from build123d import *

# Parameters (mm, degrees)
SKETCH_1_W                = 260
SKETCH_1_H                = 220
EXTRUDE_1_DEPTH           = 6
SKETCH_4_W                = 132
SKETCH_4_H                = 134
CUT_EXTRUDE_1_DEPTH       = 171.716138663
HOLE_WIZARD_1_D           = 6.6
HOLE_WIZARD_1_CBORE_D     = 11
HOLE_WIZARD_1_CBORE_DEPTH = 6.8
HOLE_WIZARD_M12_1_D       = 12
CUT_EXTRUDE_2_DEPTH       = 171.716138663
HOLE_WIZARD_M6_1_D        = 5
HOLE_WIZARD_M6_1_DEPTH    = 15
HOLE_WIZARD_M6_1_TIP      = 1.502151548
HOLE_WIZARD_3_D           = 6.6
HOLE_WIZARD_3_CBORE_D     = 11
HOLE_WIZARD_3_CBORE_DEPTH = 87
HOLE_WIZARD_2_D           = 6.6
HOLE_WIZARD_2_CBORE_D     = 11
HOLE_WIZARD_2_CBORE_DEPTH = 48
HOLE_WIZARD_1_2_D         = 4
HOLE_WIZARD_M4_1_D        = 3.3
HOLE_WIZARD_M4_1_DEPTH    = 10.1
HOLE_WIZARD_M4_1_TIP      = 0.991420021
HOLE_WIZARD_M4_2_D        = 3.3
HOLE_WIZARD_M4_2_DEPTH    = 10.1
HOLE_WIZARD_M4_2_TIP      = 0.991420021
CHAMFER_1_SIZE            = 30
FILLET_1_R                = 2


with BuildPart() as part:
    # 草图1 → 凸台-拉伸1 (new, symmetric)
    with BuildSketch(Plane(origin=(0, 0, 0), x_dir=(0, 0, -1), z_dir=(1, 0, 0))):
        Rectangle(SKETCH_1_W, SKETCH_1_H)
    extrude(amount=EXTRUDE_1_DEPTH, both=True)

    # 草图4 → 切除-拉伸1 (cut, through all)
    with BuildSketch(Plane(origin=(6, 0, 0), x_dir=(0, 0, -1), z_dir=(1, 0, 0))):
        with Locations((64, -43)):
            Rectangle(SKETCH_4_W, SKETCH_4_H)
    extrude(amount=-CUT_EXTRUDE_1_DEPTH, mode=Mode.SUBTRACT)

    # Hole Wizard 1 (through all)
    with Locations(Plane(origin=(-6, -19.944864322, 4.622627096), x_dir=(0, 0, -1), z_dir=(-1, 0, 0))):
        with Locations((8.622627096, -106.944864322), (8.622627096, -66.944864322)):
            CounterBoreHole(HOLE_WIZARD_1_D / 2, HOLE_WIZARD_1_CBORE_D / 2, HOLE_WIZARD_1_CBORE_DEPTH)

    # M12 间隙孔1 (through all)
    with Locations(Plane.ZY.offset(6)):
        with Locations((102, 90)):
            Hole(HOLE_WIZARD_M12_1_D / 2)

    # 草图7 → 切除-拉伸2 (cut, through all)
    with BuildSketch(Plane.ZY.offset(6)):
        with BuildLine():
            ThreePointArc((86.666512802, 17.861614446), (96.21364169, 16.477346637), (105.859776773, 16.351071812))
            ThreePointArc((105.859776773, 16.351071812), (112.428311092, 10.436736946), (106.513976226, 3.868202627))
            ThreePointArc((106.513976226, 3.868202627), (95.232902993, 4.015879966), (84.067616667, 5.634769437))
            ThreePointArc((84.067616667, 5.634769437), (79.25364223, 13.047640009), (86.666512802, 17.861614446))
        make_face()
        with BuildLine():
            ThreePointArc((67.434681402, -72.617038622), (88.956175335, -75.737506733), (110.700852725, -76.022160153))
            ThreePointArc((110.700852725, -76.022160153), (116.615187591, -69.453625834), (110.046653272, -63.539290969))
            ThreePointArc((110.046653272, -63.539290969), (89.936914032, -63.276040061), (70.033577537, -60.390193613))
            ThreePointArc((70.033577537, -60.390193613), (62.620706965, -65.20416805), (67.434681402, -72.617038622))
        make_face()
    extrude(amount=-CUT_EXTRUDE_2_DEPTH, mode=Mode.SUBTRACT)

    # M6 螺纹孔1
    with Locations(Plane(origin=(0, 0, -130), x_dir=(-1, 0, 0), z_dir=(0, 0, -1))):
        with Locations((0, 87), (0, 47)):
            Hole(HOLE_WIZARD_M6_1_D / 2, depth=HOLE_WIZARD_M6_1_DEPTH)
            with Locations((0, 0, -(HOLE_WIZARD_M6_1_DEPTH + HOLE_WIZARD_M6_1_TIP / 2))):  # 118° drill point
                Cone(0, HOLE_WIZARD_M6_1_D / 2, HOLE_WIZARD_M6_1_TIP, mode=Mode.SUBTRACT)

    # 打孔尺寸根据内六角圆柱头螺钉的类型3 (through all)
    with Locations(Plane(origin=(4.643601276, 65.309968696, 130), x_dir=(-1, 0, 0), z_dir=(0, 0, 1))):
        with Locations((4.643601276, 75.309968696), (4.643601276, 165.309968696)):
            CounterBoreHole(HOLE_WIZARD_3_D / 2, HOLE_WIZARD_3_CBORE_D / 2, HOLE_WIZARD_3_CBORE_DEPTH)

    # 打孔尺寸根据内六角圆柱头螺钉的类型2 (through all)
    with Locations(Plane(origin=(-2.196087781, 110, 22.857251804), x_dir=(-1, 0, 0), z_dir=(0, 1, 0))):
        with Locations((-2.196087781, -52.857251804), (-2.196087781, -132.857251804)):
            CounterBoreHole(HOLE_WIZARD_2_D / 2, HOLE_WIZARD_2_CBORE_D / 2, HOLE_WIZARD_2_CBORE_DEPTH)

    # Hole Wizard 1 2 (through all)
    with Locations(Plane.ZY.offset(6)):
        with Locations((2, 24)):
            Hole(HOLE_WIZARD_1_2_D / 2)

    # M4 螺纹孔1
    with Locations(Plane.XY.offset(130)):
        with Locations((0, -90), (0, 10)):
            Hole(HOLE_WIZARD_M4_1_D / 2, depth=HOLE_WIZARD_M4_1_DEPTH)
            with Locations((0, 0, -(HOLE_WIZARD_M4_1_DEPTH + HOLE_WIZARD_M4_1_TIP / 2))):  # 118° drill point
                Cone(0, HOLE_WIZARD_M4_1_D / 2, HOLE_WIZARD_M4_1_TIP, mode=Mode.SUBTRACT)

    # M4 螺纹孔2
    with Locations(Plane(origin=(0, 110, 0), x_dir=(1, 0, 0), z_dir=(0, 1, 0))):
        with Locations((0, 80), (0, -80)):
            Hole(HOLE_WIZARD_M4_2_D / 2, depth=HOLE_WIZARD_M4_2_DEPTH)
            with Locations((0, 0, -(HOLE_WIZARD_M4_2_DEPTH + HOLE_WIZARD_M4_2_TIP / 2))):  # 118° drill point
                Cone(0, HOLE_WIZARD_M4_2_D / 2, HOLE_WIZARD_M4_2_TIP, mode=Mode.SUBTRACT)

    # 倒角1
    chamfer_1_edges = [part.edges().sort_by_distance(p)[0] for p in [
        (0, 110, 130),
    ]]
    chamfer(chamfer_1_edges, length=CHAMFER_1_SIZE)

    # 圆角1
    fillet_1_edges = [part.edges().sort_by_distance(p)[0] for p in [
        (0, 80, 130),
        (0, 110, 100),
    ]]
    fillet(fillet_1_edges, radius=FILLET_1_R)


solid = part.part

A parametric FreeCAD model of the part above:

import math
import FreeCAD as App
import Part
import Sketcher

V = App.Vector
Q = App.Units.Quantity


def edges_at(feature, points):
    """Names of the edges that pass closest to the given points."""
    edges = feature.Shape.Edges
    near = lambda p: min(range(len(edges)), key=lambda i: edges[i].distToShape(Part.Vertex(*p))[0])
    return sorted({f"Edge{near(p) + 1}" for p in points})


def add_polygon(sketch, points):
    """Adds a closed chain of lines whose ends are joined by coincident constraints."""
    first, n = sketch.GeometryCount, len(points)
    for a, b in zip(points, points[1:] + points[:1]):
        sketch.addGeometry(Part.LineSegment(App.Vector(*a, 0), App.Vector(*b, 0)), False)
    for i in range(n):
        sketch.addConstraint(Sketcher.Constraint("Coincident", first + i, 2, first + (i + 1) % n, 1))

doc = App.newDocument("Part")
params = doc.addObject("Spreadsheet::Sheet", "Params")
for row, (alias, value) in enumerate([
    ("sketch1_width", "220 mm"),
    ("sketch1_height", "260 mm"),
    ("pad1_length", "12 mm"),
    ("sketch2_width", "134 mm"),
    ("sketch2_height", "132 mm"),
    ("sketch3_diameter", "6.6 mm"),
    ("hole_diameter", "6.6 mm"),
    ("hole_cbore_diameter", "11 mm"),
    ("hole_cbore_depth", "6.8 mm"),
    ("sketch4_diameter", "12 mm"),
    ("hole2_diameter", "12 mm"),
    ("sketch5_radius", "73.75 mm"),
    ("sketch5_radius2", "6.25 mm"),
    ("sketch5_radius3", "166.25 mm"),
    ("sketch6_diameter", "5 mm"),
    ("hole3_diameter", "5 mm"),
    ("hole3_depth", "15 mm"),
    ("sketch7_diameter", "6.6 mm"),
    ("hole4_diameter", "6.6 mm"),
    ("hole4_cbore_diameter", "11 mm"),
    ("hole4_cbore_depth", "87 mm"),
    ("sketch8_diameter", "6.6 mm"),
    ("hole5_diameter", "6.6 mm"),
    ("hole5_cbore_diameter", "11 mm"),
    ("hole5_cbore_depth", "48 mm"),
    ("sketch9_diameter", "4 mm"),
    ("hole6_diameter", "4 mm"),
    ("sketch10_diameter", "3.3 mm"),
    ("hole7_diameter", "3.3 mm"),
    ("hole7_depth", "10.1 mm"),
    ("sketch11_diameter", "3.3 mm"),
    ("hole8_diameter", "3.3 mm"),
    ("hole8_depth", "10.1 mm"),
    ("chamfer_size", "30 mm"),
    ("fillet_radius", "2 mm"),
], start=1):
    params.set(f"A{row}", alias)
    params.set(f"B{row}", "=" + value)
    params.setAlias(f"B{row}", alias)

body = doc.addObject("PartDesign::Body", "Body")

# Sketch on YZ plane
sketch1 = body.newObject("Sketcher::SketchObject", "Sketch")
sketch1.AttachmentSupport = (doc.getObject("YZ_Plane"), [""])
sketch1.MapMode = "FlatFace"
add_polygon(sketch1, [(110, 130), (-110, 130), (-110, -130), (110, -130)])  # lines 0-3
sketch1.addConstraint([
    Sketcher.Constraint("Horizontal", 0),
    Sketcher.Constraint("Vertical", 1),
    Sketcher.Constraint("Horizontal", 2),
    Sketcher.Constraint("Vertical", 3),
    Sketcher.Constraint("Symmetric", 0, 2, 2, 2, -1, 1),
    Sketcher.Constraint("DistanceX", 0, 2, 0, 1, Q("220 mm")),
    Sketcher.Constraint("DistanceY", 1, 2, 1, 1, Q("260 mm")),
])
sketch1.setExpression("Constraints[9]", "Params.sketch1_width")
sketch1.setExpression("Constraints[10]", "Params.sketch1_height")
pad1 = body.newObject("PartDesign::Pad", "Pad")
pad1.Profile = sketch1
pad1.setExpression("Length", "Params.pad1_length")
pad1.Midplane = True

# Sketch on YZ plane
sketch2 = body.newObject("Sketcher::SketchObject", "Sketch001")
sketch2.AttachmentSupport = (doc.getObject("YZ_Plane"), [""])
sketch2.MapMode = "FlatFace"
sketch2.AttachmentOffset = App.Placement(V(0, 0, 6), App.Rotation())
add_polygon(sketch2, [(24, 2), (-110, 2), (-110, -130), (24, -130)])  # lines 0-3
sketch2.addConstraint([
    Sketcher.Constraint("Horizontal", 0),
    Sketcher.Constraint("Vertical", 1),
    Sketcher.Constraint("Horizontal", 2),
    Sketcher.Constraint("Vertical", 3),
    Sketcher.Constraint("DistanceX", 0, 2, 0, 1, Q("134 mm")),
    Sketcher.Constraint("DistanceY", 1, 2, 1, 1, Q("132 mm")),
    Sketcher.Constraint("DistanceX", 0, 2, -1, 1, Q("110 mm")),
    Sketcher.Constraint("DistanceY", -1, 1, 0, 2, Q("2 mm")),
])
sketch2.setExpression("Constraints[8]", "Params.sketch2_width")
sketch2.setExpression("Constraints[9]", "Params.sketch2_height")
pocket1 = body.newObject("PartDesign::Pocket", "Pocket")
pocket1.Profile = sketch2
pocket1.Type = "ThroughAll"

# Sketch on YZ plane
sketch3 = body.newObject("Sketcher::SketchObject", "Sketch002")
sketch3.AttachmentSupport = (doc.getObject("YZ_Plane"), [""])
sketch3.MapMode = "FlatFace"
sketch3.AttachmentOffset = App.Placement(V(0, 0, -6), App.Rotation())
sketch3.addGeometry([
    Part.Circle(V(87, -4, 0), V(0, 0, 1), 3.3),
    Part.Circle(V(47, -4, 0), V(0, 0, 1), 3.3),
], False)
sketch3.addConstraint([
    Sketcher.Constraint("Equal", 0, 1),
    Sketcher.Constraint("Horizontal", 0, 3, 1, 3),
    Sketcher.Constraint("Diameter", 0, Q("6.6 mm")),
    Sketcher.Constraint("DistanceX", -1, 1, 0, 3, Q("87 mm")),
    Sketcher.Constraint("DistanceY", 0, 3, -1, 1, Q("4 mm")),
    Sketcher.Constraint("DistanceX", -1, 1, 1, 3, Q("47 mm")),
])
sketch3.setExpression("Constraints[2]", "Params.sketch3_diameter")
doc.recompute()
hole = body.newObject("PartDesign::Hole", "Hole")
hole.Profile = sketch3
hole.ThreadType = "None"
hole.setExpression("Diameter", "Params.hole_diameter")
hole.DepthType = "ThroughAll"
hole.HoleCutType = "Counterbore"
hole.setExpression("HoleCutDiameter", "Params.hole_cbore_diameter")
hole.setExpression("HoleCutDepth", "Params.hole_cbore_depth")
hole.Reversed = True

# Sketch on YZ plane
sketch4 = body.newObject("Sketcher::SketchObject", "Sketch003")
sketch4.AttachmentSupport = (doc.getObject("YZ_Plane"), [""])
sketch4.MapMode = "FlatFace"
sketch4.AttachmentOffset = App.Placement(V(0, 0, -6), App.Rotation())
sketch4.addGeometry(Part.Circle(V(90, 102, 0), V(0, 0, 1), 6), False)
sketch4.addConstraint([
    Sketcher.Constraint("Diameter", 0, Q("12 mm")),
    Sketcher.Constraint("DistanceX", -1, 1, 0, 3, Q("90 mm")),
    Sketcher.Constraint("DistanceY", -1, 1, 0, 3, Q("102 mm")),
])
sketch4.setExpression("Constraints[0]", "Params.sketch4_diameter")
doc.recompute()
hole2 = body.newObject("PartDesign::Hole", "Hole001")
hole2.Profile = sketch4
hole2.ThreadType = "None"
hole2.setExpression("Diameter", "Params.hole2_diameter")
hole2.DepthType = "ThroughAll"
hole2.Reversed = True

# Sketch on YZ plane
sketch5 = body.newObject("Sketcher::SketchObject", "Sketch004")
sketch5.AttachmentSupport = (doc.getObject("YZ_Plane"), [""])
sketch5.MapMode = "FlatFace"
sketch5.AttachmentOffset = App.Placement(V(0, 0, -6), App.Rotation())
sketch5.addGeometry([
    Part.ArcOfCircle(Part.Circle(V(90, 102, 0), V(0, 0, 1), 74), math.radians(177), math.radians(192)),  # 0
    Part.ArcOfCircle(Part.Circle(V(12, 85, 0), V(0, 0, 1), 6), math.radians(-168), math.radians(12)),  # 1
    Part.ArcOfCircle(Part.Circle(V(90, 102, 0), V(0, 0, 1), 86), math.radians(177), math.radians(192)),  # 2
    Part.ArcOfCircle(Part.Circle(V(10, 106, 0), V(0, 0, 1), 6), math.radians(-3), math.radians(177)),  # 3
    Part.ArcOfCircle(Part.Circle(V(90, 102, 0), V(0, 0, 1), 166), math.radians(177), math.radians(192)),  # 4
    Part.ArcOfCircle(Part.Circle(V(-70, 110, 0), V(0, 0, 1), 6), math.radians(-3), math.radians(177)),  # 5
    Part.ArcOfCircle(Part.Circle(V(90, 102, 0), V(0, 0, 1), 154), math.radians(177), math.radians(192)),  # 6
    Part.ArcOfCircle(Part.Circle(V(-67, 69, 0), V(0, 0, 1), 6), math.radians(-168), math.radians(12)),  # 7
], False)
sketch5.addConstraint([
    Sketcher.Constraint("Tangent", 0, 2, 1, 2),
    Sketcher.Constraint("Tangent", 1, 1, 2, 2),
    Sketcher.Constraint("Tangent", 2, 1, 3, 2),
    Sketcher.Constraint("Tangent", 3, 1, 0, 1),
    Sketcher.Constraint("Tangent", 4, 1, 5, 2),
    Sketcher.Constraint("Tangent", 5, 1, 6, 1),
    Sketcher.Constraint("Tangent", 6, 2, 7, 2),
    Sketcher.Constraint("Tangent", 7, 1, 4, 2),
    Sketcher.Constraint("Coincident", 2, 3, 0, 3),
    Sketcher.Constraint("Coincident", 4, 3, 0, 3),
    Sketcher.Constraint("Coincident", 6, 3, 0, 3),
    Sketcher.Constraint("Equal", 3, 5),
    Sketcher.Constraint("Radius", 0, Q("73.75 mm")),
    Sketcher.Constraint("Radius", 1, Q("6.25 mm")),
    Sketcher.Constraint("Radius", 4, Q("166.25 mm")),
    Sketcher.Constraint("DistanceX", -1, 1, 0, 3, Q("90 mm")),
    Sketcher.Constraint("DistanceY", -1, 1, 0, 3, Q("102 mm")),
    Sketcher.Constraint("DistanceY", 3, 1, 3, 3, Q("0.3271 mm")),
    Sketcher.Constraint("DistanceY", 5, 1, 5, 3, Q("0.3271 mm")),
    Sketcher.Constraint("DistanceX", -1, 1, 1, 3, Q("11.748192 mm")),
    Sketcher.Constraint("DistanceY", -1, 1, 7, 3, Q("68.734129 mm")),
])
sketch5.setExpression("Constraints[12]", "Params.sketch5_radius")
sketch5.setExpression("Constraints[13]", "Params.sketch5_radius2")
sketch5.setExpression("Constraints[14]", "Params.sketch5_radius3")
pocket2 = body.newObject("PartDesign::Pocket", "Pocket001")
pocket2.Profile = sketch5
pocket2.Type = "ThroughAll"
pocket2.Reversed = True

# Sketch on XY plane
sketch6 = body.newObject("Sketcher::SketchObject", "Sketch005")
sketch6.AttachmentSupport = (doc.getObject("XY_Plane"), [""])
sketch6.MapMode = "FlatFace"
sketch6.AttachmentOffset = App.Placement(V(0, 0, -130), App.Rotation())
sketch6.addGeometry([
    Part.Circle(V(0, 87, 0), V(0, 0, 1), 2.5),
    Part.Circle(V(0, 47, 0), V(0, 0, 1), 2.5),
], False)
sketch6.addConstraint([
    Sketcher.Constraint("Equal", 0, 1),
    Sketcher.Constraint("PointOnObject", 0, 3, -2),
    Sketcher.Constraint("PointOnObject", 1, 3, -2),
    Sketcher.Constraint("Diameter", 0, Q("5 mm")),
    Sketcher.Constraint("DistanceY", -1, 1, 0, 3, Q("87 mm")),
    Sketcher.Constraint("DistanceY", -1, 1, 1, 3, Q("47 mm")),
])
sketch6.setExpression("Constraints[3]", "Params.sketch6_diameter")
doc.recompute()
hole3 = body.newObject("PartDesign::Hole", "Hole002")
hole3.Profile = sketch6
hole3.ThreadType = "None"
hole3.setExpression("Diameter", "Params.hole3_diameter")
hole3.DepthType = "Dimension"
hole3.setExpression("Depth", "Params.hole3_depth")
hole3.DrillPoint = "Angled"
hole3.DrillPointAngle = 118
hole3.Reversed = True

# Sketch on XY plane
sketch7 = body.newObject("Sketcher::SketchObject", "Sketch006")
sketch7.AttachmentSupport = (doc.getObject("XY_Plane"), [""])
sketch7.MapMode = "FlatFace"
sketch7.AttachmentOffset = App.Placement(V(0, 0, 130), App.Rotation())
sketch7.addGeometry([
    Part.Circle(V(0, -10, 0), V(0, 0, 1), 3.3),
    Part.Circle(V(0, -100, 0), V(0, 0, 1), 3.3),
], False)
sketch7.addConstraint([
    Sketcher.Constraint("Equal", 0, 1),
    Sketcher.Constraint("PointOnObject", 0, 3, -2),
    Sketcher.Constraint("PointOnObject", 1, 3, -2),
    Sketcher.Constraint("Diameter", 0, Q("6.6 mm")),
    Sketcher.Constraint("DistanceY", 0, 3, -1, 1, Q("10 mm")),
    Sketcher.Constraint("DistanceY", 1, 3, -1, 1, Q("100 mm")),
])
sketch7.setExpression("Constraints[3]", "Params.sketch7_diameter")
doc.recompute()
hole4 = body.newObject("PartDesign::Hole", "Hole003")
hole4.Profile = sketch7
hole4.ThreadType = "None"
hole4.setExpression("Diameter", "Params.hole4_diameter")
hole4.DepthType = "ThroughAll"
hole4.HoleCutType = "Counterbore"
hole4.setExpression("HoleCutDiameter", "Params.hole4_cbore_diameter")
hole4.setExpression("HoleCutDepth", "Params.hole4_cbore_depth")

# Sketch on XZ plane
sketch8 = body.newObject("Sketcher::SketchObject", "Sketch007")
sketch8.AttachmentSupport = (doc.getObject("XZ_Plane"), [""])
sketch8.MapMode = "FlatFace"
sketch8.AttachmentOffset = App.Placement(V(0, 0, -110), App.Rotation())
sketch8.addGeometry([
    Part.Circle(V(0, -30, 0), V(0, 0, 1), 3.3),
    Part.Circle(V(0, -110, 0), V(0, 0, 1), 3.3),
], False)
sketch8.addConstraint([
    Sketcher.Constraint("Equal", 0, 1),
    Sketcher.Constraint("PointOnObject", 0, 3, -2),
    Sketcher.Constraint("PointOnObject", 1, 3, -2),
    Sketcher.Constraint("Diameter", 0, Q("6.6 mm")),
    Sketcher.Constraint("DistanceY", 0, 3, -1, 1, Q("30 mm")),
    Sketcher.Constraint("DistanceY", 1, 3, -1, 1, Q("110 mm")),
])
sketch8.setExpression("Constraints[3]", "Params.sketch8_diameter")
doc.recompute()
hole5 = body.newObject("PartDesign::Hole", "Hole004")
hole5.Profile = sketch8
hole5.ThreadType = "None"
hole5.setExpression("Diameter", "Params.hole5_diameter")
hole5.DepthType = "ThroughAll"
hole5.HoleCutType = "Counterbore"
hole5.setExpression("HoleCutDiameter", "Params.hole5_cbore_diameter")
hole5.setExpression("HoleCutDepth", "Params.hole5_cbore_depth")
hole5.Reversed = True

# Sketch on YZ plane
sketch9 = body.newObject("Sketcher::SketchObject", "Sketch008")
sketch9.AttachmentSupport = (doc.getObject("YZ_Plane"), [""])
sketch9.MapMode = "FlatFace"
sketch9.AttachmentOffset = App.Placement(V(0, 0, -6), App.Rotation())
sketch9.addGeometry(Part.Circle(V(24, 2, 0), V(0, 0, 1), 2), False)
sketch9.addConstraint([
    Sketcher.Constraint("Diameter", 0, Q("4 mm")),
    Sketcher.Constraint("DistanceX", -1, 1, 0, 3, Q("24 mm")),
    Sketcher.Constraint("DistanceY", -1, 1, 0, 3, Q("2 mm")),
])
sketch9.setExpression("Constraints[0]", "Params.sketch9_diameter")
doc.recompute()
hole6 = body.newObject("PartDesign::Hole", "Hole005")
hole6.Profile = sketch9
hole6.ThreadType = "None"
hole6.setExpression("Diameter", "Params.hole6_diameter")
hole6.DepthType = "ThroughAll"
hole6.Reversed = True

# Sketch on XY plane
sketch10 = body.newObject("Sketcher::SketchObject", "Sketch009")
sketch10.AttachmentSupport = (doc.getObject("XY_Plane"), [""])
sketch10.MapMode = "FlatFace"
sketch10.AttachmentOffset = App.Placement(V(0, 0, 130), App.Rotation())
sketch10.addGeometry([
    Part.Circle(V(0, -90, 0), V(0, 0, 1), 1.6),
    Part.Circle(V(0, 10, 0), V(0, 0, 1), 1.6),
], False)
sketch10.addConstraint([
    Sketcher.Constraint("Equal", 0, 1),
    Sketcher.Constraint("PointOnObject", 0, 3, -2),
    Sketcher.Constraint("PointOnObject", 1, 3, -2),
    Sketcher.Constraint("Diameter", 0, Q("3.3 mm")),
    Sketcher.Constraint("DistanceY", 0, 3, -1, 1, Q("90 mm")),
    Sketcher.Constraint("DistanceY", -1, 1, 1, 3, Q("10 mm")),
])
sketch10.setExpression("Constraints[3]", "Params.sketch10_diameter")
doc.recompute()
hole7 = body.newObject("PartDesign::Hole", "Hole006")
hole7.Profile = sketch10
hole7.ThreadType = "None"
hole7.setExpression("Diameter", "Params.hole7_diameter")
hole7.DepthType = "Dimension"
hole7.setExpression("Depth", "Params.hole7_depth")
hole7.DrillPoint = "Angled"
hole7.DrillPointAngle = 118

# Sketch on XZ plane
sketch11 = body.newObject("Sketcher::SketchObject", "Sketch010")
sketch11.AttachmentSupport = (doc.getObject("XZ_Plane"), [""])
sketch11.MapMode = "FlatFace"
sketch11.AttachmentOffset = App.Placement(V(0, 0, -110), App.Rotation())
sketch11.addGeometry([
    Part.Circle(V(0, -80, 0), V(0, 0, 1), 1.6),
    Part.Circle(V(0, 80, 0), V(0, 0, 1), 1.6),
], False)
sketch11.addConstraint([
    Sketcher.Constraint("Equal", 0, 1),
    Sketcher.Constraint("Symmetric", 0, 3, 1, 3, -1, 1),
    Sketcher.Constraint("PointOnObject", 0, 3, -2),
    Sketcher.Constraint("Diameter", 0, Q("3.3 mm")),
    Sketcher.Constraint("DistanceY", 0, 3, -1, 1, Q("80 mm")),
])
sketch11.setExpression("Constraints[3]", "Params.sketch11_diameter")
doc.recompute()
hole8 = body.newObject("PartDesign::Hole", "Hole007")
hole8.Profile = sketch11
hole8.ThreadType = "None"
hole8.setExpression("Diameter", "Params.hole8_diameter")
hole8.DepthType = "Dimension"
hole8.setExpression("Depth", "Params.hole8_depth")
hole8.DrillPoint = "Angled"
hole8.DrillPointAngle = 118
hole8.Reversed = True
doc.recompute()

chamfer = body.newObject("PartDesign::Chamfer", "Chamfer")
chamfer.Base = (hole8, edges_at(hole8, [(0, 110, 130)]))
chamfer.setExpression("Size", "Params.chamfer_size")
doc.recompute()

fillet = body.newObject("PartDesign::Fillet", "Fillet")
fillet.Base = (chamfer, edges_at(chamfer, [(0, 80, 130), (0, 110, 100)]))
fillet.setExpression("Radius", "Params.fillet_radius")

doc.recompute()
